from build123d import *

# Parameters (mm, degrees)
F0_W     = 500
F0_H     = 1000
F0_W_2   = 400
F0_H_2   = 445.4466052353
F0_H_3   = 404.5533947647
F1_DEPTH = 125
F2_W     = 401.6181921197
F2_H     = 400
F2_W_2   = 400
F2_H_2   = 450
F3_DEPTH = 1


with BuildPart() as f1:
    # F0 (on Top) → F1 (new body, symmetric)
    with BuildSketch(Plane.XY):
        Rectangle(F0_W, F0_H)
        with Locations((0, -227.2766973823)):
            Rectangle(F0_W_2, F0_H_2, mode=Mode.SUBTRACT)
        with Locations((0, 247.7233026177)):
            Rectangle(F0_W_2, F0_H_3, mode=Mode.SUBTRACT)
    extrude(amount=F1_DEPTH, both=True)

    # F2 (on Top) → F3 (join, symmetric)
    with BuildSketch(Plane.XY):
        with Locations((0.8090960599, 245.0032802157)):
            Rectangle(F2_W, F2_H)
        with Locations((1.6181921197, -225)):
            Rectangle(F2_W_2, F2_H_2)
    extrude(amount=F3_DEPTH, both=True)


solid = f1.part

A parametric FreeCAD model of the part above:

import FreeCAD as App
import Part
import Sketcher

V = App.Vector


def add_polygon(sketch, points):
    """Adds a closed chain of lines whose ends are joined by coincident constraints."""
    first, n = sketch.GeometryCount, len(points)
    for a, b in zip(points, points[1:] + points[:1]):
        sketch.addGeometry(Part.LineSegment(App.Vector(*a, 0), App.Vector(*b, 0)), False)
    for i in range(n):
        sketch.addConstraint(Sketcher.Constraint("Coincident", first + i, 2, first + (i + 1) % n, 1))

doc = App.newDocument("Part")
body = doc.addObject("PartDesign::Body", "Body")

# Sketch on XY plane
sketch1 = doc.addObject("Sketcher::SketchObject", "Sketch")
body.addObject(sketch1)
sketch1.AttachmentSupport = (doc.XY_Plane, [""])
sketch1.MapMode = "FlatFace"
add_polygon(sketch1, [(-250, 500), (-250, -500), (250, -500), (250, 500)])  # lines 0-3
add_polygon(sketch1, [(200, -450), (-200, -450), (-200, -5), (200, -5)])  # lines 4-7
add_polygon(sketch1, [(200, 45), (-200, 45), (-200, 450), (200, 450)])  # lines 8-11
sketch1.addConstraint([
    Sketcher.Constraint("Vertical", 0),
    Sketcher.Constraint("Horizontal", 1),
    Sketcher.Constraint("Vertical", 2),
    Sketcher.Constraint("Horizontal", 3),
    Sketcher.Constraint("Horizontal", 4),
    Sketcher.Constraint("Vertical", 5),
    Sketcher.Constraint("Horizontal", 6),
    Sketcher.Constraint("Vertical", 7),
    Sketcher.Constraint("Horizontal", 8),
    Sketcher.Constraint("Vertical", 9),
    Sketcher.Constraint("Horizontal", 10),
    Sketcher.Constraint("Vertical", 11),
    Sketcher.Constraint("Symmetric", 0, 2, 2, 2, -1, 1),
    Sketcher.Constraint("Symmetric", 7, 2, 9, 2, -1, 1),
    Sketcher.Constraint("Vertical", 5, 2, 8, 2),
    Sketcher.Constraint("Vertical", 7, 2, 10, 2),
    Sketcher.Constraint("DistanceX", 1, 1, 1, 2, 500.0),
    Sketcher.Constraint("DistanceX", 4, 2, 4, 1, 400.0),
    Sketcher.Constraint("DistanceY", 0, 2, 0, 1, 1000.0),
    Sketcher.Constraint("DistanceY", 4, 2, -1, 1, 450.0),
    Sketcher.Constraint("DistanceY", 5, 2, 8, 2, 50.0),
    Sketcher.Constraint("DistanceY", 5, 1, 5, 2, 445.446605),
])
pad1 = doc.addObject("PartDesign::Pad", "Pad")
body.addObject(pad1)
pad1.Profile = sketch1
pad1.Length = 250
pad1.Midplane = True

# Sketch on XY plane
sketch2 = doc.addObject("Sketcher::SketchObject", "Sketch001")
body.addObject(sketch2)
sketch2.AttachmentSupport = (doc.XY_Plane, [""])
sketch2.MapMode = "FlatFace"
add_polygon(sketch2, [(-200, 445), (-200, 45), (202, 45), (202, 445)])  # lines 0-3
add_polygon(sketch2, [(-198, 0), (-198, -450), (202, -450), (202, 0)])  # lines 4-7
sketch2.addConstraint([
    Sketcher.Constraint("Vertical", 0),
    Sketcher.Constraint("Horizontal", 1),
    Sketcher.Constraint("Vertical", 2),
    Sketcher.Constraint("Horizontal", 3),
    Sketcher.Constraint("Vertical", 4),
    Sketcher.Constraint("Horizontal", 5),
    Sketcher.Constraint("Vertical", 6),
    Sketcher.Constraint("Horizontal", 7),
    Sketcher.Constraint("PointOnObject", 6, 2, -1),
    Sketcher.Constraint("Vertical", 2, 2, 5, 2),
    Sketcher.Constraint("Equal", 7, 0),
    Sketcher.Constraint("DistanceX", 5, 1, 5, 2, 400.0),
    Sketcher.Constraint("DistanceY", 4, 2, 4, 1, 450.0),
    Sketcher.Constraint("DistanceX", 0, 2, -1, 1, 200.0),
    Sketcher.Constraint("DistanceX", 1, 1, 1, 2, 401.618192),
    Sketcher.Constraint("DistanceY", -1, 1, 0, 2, 45.00328),
])
pad2 = doc.addObject("PartDesign::Pad", "Pad001")
body.addObject(pad2)
pad2.Profile = sketch2
pad2.Length = 2
pad2.Midplane = True

doc.recompute()
